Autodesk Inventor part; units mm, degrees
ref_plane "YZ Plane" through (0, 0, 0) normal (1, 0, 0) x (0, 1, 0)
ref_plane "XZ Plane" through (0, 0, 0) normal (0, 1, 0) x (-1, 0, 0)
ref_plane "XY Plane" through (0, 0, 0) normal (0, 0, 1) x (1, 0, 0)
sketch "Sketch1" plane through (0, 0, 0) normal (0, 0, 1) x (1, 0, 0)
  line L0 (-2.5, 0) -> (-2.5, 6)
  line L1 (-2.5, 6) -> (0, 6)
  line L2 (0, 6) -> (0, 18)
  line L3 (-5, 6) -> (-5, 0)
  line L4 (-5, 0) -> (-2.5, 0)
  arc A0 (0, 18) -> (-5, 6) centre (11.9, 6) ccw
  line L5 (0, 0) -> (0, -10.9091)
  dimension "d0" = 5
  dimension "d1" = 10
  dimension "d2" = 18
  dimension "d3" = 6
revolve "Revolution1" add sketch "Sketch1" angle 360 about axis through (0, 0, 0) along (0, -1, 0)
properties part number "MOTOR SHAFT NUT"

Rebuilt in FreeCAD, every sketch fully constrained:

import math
import FreeCAD as App
import Part
import Sketcher

doc = App.newDocument("Part")
body = doc.addObject("PartDesign::Body", "Body")

sketch1 = body.newObject("Sketcher::SketchObject", "Sketch")
sketch1.AttachmentSupport = (doc.getObject("XY_Plane"), [""])
sketch1.MapMode = "FlatFace"
sketch1.addGeometry([
    Part.LineSegment(App.Vector(-5, 0, 0), App.Vector(-2.5, 0, 0)),
    Part.LineSegment(App.Vector(-2.5, 0, 0), App.Vector(-2.5, 6, 0)),
    Part.LineSegment(App.Vector(-2.5, 6, 0), App.Vector(0, 6, 0)),
    Part.LineSegment(App.Vector(0, 6, 0), App.Vector(0, 18, 0)),
    Part.ArcOfCircle(Part.Circle(App.Vector(11.9, 6, 0), App.Vector(0, 0, 1), 16.9), math.radians(134.76027), math.radians(180)),
    Part.LineSegment(App.Vector(-5, 6, 0), App.Vector(-5, 0, 0)),
], False)
sketch1.addConstraint([
    Sketcher.Constraint("Coincident", 0, 2, 1, 1),
    Sketcher.Constraint("Coincident", 1, 2, 2, 1),
    Sketcher.Constraint("Coincident", 2, 2, 3, 1),
    Sketcher.Constraint("Coincident", 3, 2, 4, 1),
    Sketcher.Constraint("Tangent", 4, 2, 5, 1),
    Sketcher.Constraint("Coincident", 5, 2, 0, 1),
    Sketcher.Constraint("Horizontal", 0),
    Sketcher.Constraint("Vertical", 1),
    Sketcher.Constraint("Horizontal", 2),
    Sketcher.Constraint("Vertical", 3),
    Sketcher.Constraint("Vertical", 5),
    Sketcher.Constraint("PointOnObject", 0, 2, -1),
    Sketcher.Constraint("PointOnObject", 2, 2, -2),
    Sketcher.Constraint("Horizontal", 4, 3, 1, 2),
    Sketcher.Constraint("Equal", 0, 2),
    Sketcher.Constraint("DistanceY", 1, 1, 1, 2, 6.0),
    Sketcher.Constraint("DistanceY", -1, 1, 3, 2, 18.0),
    Sketcher.Constraint("DistanceX", 4, 2, -1, 1, 5.0),
])
revolution = body.newObject("PartDesign::Revolution", "Revolution")
revolution.Profile = sketch1
revolution.ReferenceAxis = (sketch1, ["V_Axis"])
revolution.Angle = 360

doc.recompute()
